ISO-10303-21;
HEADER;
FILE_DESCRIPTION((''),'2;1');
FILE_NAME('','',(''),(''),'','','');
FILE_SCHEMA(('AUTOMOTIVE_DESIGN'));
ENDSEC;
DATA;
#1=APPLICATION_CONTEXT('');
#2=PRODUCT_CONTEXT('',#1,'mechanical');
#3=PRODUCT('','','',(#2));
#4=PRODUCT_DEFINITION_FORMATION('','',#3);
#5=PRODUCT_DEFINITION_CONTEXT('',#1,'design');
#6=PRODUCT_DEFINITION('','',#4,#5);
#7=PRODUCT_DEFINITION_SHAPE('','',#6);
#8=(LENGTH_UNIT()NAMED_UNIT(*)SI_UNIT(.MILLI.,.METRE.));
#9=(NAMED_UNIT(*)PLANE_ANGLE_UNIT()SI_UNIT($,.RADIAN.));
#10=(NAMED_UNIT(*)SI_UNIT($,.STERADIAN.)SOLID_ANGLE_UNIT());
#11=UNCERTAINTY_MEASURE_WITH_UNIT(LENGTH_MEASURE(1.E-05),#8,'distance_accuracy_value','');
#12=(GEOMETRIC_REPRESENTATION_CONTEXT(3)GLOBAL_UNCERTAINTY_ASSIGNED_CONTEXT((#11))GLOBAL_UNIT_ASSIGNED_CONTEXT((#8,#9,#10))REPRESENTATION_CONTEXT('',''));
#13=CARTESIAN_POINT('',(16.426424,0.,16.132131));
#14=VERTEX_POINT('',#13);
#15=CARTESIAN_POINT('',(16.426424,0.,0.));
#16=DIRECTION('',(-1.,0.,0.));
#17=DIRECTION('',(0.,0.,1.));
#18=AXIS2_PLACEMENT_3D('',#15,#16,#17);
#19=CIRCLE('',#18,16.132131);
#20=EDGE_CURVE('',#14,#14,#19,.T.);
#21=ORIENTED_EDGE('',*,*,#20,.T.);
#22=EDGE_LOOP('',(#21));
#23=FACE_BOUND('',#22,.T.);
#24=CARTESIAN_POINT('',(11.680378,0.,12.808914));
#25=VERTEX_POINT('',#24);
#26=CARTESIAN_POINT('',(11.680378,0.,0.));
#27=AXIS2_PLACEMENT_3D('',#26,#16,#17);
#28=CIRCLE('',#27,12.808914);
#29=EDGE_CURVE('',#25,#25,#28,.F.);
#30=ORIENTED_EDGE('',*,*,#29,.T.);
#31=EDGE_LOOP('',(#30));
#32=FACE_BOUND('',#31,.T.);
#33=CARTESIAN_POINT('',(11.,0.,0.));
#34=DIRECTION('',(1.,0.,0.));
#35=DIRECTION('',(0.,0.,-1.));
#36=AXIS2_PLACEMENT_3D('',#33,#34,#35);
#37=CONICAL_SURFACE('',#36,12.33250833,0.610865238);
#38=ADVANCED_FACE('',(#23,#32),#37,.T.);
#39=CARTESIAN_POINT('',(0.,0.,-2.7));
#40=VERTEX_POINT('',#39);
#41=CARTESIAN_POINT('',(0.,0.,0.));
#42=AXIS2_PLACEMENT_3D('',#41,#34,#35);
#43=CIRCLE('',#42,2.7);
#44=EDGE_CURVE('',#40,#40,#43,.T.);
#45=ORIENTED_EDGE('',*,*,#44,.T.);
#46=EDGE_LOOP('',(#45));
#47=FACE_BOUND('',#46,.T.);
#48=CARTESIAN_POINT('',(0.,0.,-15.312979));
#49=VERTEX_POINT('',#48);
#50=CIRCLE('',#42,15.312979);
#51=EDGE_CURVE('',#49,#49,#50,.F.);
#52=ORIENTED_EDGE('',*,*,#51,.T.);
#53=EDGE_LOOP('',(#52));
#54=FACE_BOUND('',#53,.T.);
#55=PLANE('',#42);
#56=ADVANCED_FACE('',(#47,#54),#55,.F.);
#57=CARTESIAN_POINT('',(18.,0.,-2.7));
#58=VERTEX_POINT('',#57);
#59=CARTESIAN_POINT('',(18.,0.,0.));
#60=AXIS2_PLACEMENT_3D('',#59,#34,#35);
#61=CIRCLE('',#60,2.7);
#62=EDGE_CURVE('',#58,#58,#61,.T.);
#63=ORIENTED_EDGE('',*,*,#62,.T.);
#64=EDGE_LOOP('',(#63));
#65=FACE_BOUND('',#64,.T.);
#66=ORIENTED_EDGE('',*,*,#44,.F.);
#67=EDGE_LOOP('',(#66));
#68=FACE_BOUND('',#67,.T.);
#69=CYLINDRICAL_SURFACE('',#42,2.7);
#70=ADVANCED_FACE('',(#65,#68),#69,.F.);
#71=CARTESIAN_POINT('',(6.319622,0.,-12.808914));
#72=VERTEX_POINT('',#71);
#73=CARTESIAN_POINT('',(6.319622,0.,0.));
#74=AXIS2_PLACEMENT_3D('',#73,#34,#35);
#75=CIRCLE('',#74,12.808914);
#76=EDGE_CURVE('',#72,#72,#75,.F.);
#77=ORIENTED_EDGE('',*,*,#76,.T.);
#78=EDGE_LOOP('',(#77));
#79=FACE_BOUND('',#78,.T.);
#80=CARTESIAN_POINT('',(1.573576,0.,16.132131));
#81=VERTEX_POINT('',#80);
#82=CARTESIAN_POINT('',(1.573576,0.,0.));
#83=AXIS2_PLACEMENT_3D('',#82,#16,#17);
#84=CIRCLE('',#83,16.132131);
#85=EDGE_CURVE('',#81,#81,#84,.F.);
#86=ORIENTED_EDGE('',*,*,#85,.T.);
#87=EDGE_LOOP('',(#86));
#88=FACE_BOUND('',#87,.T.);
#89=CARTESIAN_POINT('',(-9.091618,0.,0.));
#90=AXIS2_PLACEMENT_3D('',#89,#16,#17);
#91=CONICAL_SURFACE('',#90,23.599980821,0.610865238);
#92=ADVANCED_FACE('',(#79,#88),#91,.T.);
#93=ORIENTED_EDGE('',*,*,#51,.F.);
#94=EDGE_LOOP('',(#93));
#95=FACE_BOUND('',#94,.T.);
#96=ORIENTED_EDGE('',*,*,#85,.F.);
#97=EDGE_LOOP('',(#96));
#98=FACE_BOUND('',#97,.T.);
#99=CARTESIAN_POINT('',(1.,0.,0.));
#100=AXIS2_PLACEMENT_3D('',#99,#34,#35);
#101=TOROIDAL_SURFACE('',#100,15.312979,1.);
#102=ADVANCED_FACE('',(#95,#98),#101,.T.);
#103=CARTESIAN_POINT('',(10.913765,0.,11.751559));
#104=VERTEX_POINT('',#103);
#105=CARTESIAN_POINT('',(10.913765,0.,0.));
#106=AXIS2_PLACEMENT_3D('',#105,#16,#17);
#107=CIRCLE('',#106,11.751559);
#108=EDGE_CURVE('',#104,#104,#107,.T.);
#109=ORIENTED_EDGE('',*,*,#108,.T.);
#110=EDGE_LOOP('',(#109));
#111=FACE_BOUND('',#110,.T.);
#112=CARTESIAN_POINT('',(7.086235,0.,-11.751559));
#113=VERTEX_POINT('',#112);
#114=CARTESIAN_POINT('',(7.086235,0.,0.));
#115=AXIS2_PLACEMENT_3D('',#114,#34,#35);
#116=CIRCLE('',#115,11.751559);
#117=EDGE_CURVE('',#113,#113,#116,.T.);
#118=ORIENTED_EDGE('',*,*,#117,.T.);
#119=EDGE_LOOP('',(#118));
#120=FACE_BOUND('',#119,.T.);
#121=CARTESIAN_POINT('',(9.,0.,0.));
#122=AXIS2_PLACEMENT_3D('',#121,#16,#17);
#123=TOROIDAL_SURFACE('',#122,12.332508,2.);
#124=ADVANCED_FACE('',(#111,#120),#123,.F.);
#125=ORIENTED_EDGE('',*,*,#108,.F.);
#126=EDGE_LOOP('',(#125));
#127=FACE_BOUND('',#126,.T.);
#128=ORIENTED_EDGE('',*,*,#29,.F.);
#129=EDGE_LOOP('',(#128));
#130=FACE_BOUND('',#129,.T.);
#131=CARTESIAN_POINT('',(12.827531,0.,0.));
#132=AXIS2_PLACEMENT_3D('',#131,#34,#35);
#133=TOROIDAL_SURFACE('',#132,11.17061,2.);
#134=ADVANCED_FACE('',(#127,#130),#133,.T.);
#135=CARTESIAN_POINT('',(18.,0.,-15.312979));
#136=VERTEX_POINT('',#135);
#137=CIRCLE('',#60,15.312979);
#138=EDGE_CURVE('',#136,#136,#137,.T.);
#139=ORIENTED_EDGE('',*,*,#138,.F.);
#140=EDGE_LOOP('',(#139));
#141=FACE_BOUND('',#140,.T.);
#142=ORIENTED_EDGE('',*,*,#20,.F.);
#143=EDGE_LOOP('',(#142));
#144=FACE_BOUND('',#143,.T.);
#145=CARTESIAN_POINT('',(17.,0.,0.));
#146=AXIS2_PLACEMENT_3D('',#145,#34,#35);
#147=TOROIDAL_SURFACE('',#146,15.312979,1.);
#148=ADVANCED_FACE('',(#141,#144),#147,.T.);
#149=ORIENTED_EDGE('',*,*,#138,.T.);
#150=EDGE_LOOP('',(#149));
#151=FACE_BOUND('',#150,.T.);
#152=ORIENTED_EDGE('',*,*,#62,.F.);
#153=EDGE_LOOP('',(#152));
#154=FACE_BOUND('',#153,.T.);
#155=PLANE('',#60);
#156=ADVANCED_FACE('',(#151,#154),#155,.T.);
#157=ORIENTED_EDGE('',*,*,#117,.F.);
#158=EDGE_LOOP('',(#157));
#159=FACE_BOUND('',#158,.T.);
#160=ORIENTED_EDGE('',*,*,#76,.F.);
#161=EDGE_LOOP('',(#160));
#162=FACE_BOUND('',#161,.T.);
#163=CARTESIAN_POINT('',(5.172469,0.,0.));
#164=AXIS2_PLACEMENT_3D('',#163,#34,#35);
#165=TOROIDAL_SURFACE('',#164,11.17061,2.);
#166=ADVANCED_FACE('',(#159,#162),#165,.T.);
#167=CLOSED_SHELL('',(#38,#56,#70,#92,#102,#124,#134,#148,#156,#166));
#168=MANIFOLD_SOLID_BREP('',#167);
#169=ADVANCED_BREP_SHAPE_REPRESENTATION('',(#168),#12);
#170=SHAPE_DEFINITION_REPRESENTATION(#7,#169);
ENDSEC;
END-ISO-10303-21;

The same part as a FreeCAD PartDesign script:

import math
import FreeCAD as App
import Part
import Sketcher
from FreeCAD import Vector
Q = App.Units.Quantity


def edges_at(feature, points):
    """Names of the edges that pass closest to the given points."""
    edges = feature.Shape.Edges
    near = lambda p: min(range(len(edges)), key=lambda i: edges[i].distToShape(Part.Vertex(*p))[0])
    return sorted({f"Edge{near(p) + 1}" for p in points})

doc = App.newDocument("Part")
body = doc.addObject("PartDesign::Body", "Body")

sketch1 = doc.addObject("Sketcher::SketchObject", "Sketch")
body.addObject(sketch1)
sketch1.AttachmentSupport = (doc.YZ_Plane, [""])
sketch1.MapMode = "FlatFace"
sketch1.addGeometry(Part.Circle(Vector(0, 0, 0), Vector(0, 0, 1), 20), False)
sketch1.addConstraint(Sketcher.Constraint("Coincident", 0, 3, -1, 1))
sketch1.addConstraint(Sketcher.Constraint("Diameter", 0, 40.0))
pad1 = doc.addObject("PartDesign::Pad", "Pad")
body.addObject(pad1)
pad1.Profile = sketch1
pad1.Length = 18

sketch2 = doc.addObject("Sketcher::SketchObject", "Sketch001")
body.addObject(sketch2)
sketch2.AttachmentSupport = (doc.YZ_Plane, [""])
sketch2.MapMode = "FlatFace"
sketch2.AttachmentOffset = App.Placement(Vector(0, 0, 18), App.Rotation())
sketch2.addGeometry(Part.Circle(Vector(0, 0, 0), Vector(0, 0, 1), 2.7), False)
sketch2.addConstraint(Sketcher.Constraint("Coincident", 0, 3, -1, 1))
sketch2.addConstraint(Sketcher.Constraint("Diameter", 0, 5.4))
pocket1 = doc.addObject("PartDesign::Pocket", "Pocket")
body.addObject(pocket1)
pocket1.Profile = sketch2
pocket1.Length = 18

sketch3 = doc.addObject("Sketcher::SketchObject", "Sketch002")
body.addObject(sketch3)
sketch3.AttachmentSupport = (doc.XY_Plane, [""])
sketch3.MapMode = "FlatFace"
sketch3.addGeometry(Part.LineSegment(Vector(11, 12.3, 0), Vector(27.1, 23.6, 0)), False)
sketch3.addGeometry(Part.LineSegment(Vector(27.1, 23.6, 0), Vector(-9.1, 23.6, 0)), False)
sketch3.addGeometry(Part.LineSegment(Vector(-9.1, 23.6, 0), Vector(7, 12.3, 0)), False)
sketch3.addGeometry(Part.ArcOfCircle(Part.Circle(Vector(9, 12.3, 0), Vector(0, 0, 1), 2), math.radians(180), math.radians(360)), False)
sketch3.addConstraint(Sketcher.Constraint("Coincident", 0, 2, 1, 1))
sketch3.addConstraint(Sketcher.Constraint("Coincident", 1, 2, 2, 1))
sketch3.addConstraint(Sketcher.Constraint("Coincident", 2, 2, 3, 1))
sketch3.addConstraint(Sketcher.Constraint("Coincident", 3, 2, 0, 1))
sketch3.addConstraint(Sketcher.Constraint("Horizontal", 1))
sketch3.addConstraint(Sketcher.Constraint("Horizontal", 3, 3, 2, 2))
sketch3.addConstraint(Sketcher.Constraint("Horizontal", 2, 2, 3, 2))
sketch3.addConstraint(Sketcher.Constraint("Equal", 0, 2))
sketch3.addConstraint(Sketcher.Constraint("Radius", 3, 2.0))
sketch3.addConstraint(Sketcher.Constraint("Angle", 0, Q("35 deg")))
sketch3.addConstraint(Sketcher.Constraint("DistanceX", -1, 1, 3, 3, 9.0))
sketch3.addConstraint(Sketcher.Constraint("Distance", 0, 19.644239))
sketch3.addConstraint(Sketcher.Constraint("DistanceY", -1, 1, 3, 3, 12.332508))
groove = doc.addObject("PartDesign::Groove", "Groove")
body.addObject(groove)
groove.Profile = sketch3
groove.ReferenceAxis = (sketch3, ["H_Axis"])
groove.Angle = 360
doc.recompute()

fillet = doc.addObject("PartDesign::Fillet", "Fillet")
body.addObject(fillet)
fillet.Base = (groove, edges_at(groove, [(18, -17.234, 0), (0, -17.234, 0)]))
fillet.Radius = 1
doc.recompute()

fillet2 = doc.addObject("PartDesign::Fillet", "Fillet001")
body.addObject(fillet2)
fillet2.Base = (fillet, edges_at(fillet, [(11, -12.333, 0), (7, -12.333, 0)]))
fillet2.Radius = 2

doc.recompute()
